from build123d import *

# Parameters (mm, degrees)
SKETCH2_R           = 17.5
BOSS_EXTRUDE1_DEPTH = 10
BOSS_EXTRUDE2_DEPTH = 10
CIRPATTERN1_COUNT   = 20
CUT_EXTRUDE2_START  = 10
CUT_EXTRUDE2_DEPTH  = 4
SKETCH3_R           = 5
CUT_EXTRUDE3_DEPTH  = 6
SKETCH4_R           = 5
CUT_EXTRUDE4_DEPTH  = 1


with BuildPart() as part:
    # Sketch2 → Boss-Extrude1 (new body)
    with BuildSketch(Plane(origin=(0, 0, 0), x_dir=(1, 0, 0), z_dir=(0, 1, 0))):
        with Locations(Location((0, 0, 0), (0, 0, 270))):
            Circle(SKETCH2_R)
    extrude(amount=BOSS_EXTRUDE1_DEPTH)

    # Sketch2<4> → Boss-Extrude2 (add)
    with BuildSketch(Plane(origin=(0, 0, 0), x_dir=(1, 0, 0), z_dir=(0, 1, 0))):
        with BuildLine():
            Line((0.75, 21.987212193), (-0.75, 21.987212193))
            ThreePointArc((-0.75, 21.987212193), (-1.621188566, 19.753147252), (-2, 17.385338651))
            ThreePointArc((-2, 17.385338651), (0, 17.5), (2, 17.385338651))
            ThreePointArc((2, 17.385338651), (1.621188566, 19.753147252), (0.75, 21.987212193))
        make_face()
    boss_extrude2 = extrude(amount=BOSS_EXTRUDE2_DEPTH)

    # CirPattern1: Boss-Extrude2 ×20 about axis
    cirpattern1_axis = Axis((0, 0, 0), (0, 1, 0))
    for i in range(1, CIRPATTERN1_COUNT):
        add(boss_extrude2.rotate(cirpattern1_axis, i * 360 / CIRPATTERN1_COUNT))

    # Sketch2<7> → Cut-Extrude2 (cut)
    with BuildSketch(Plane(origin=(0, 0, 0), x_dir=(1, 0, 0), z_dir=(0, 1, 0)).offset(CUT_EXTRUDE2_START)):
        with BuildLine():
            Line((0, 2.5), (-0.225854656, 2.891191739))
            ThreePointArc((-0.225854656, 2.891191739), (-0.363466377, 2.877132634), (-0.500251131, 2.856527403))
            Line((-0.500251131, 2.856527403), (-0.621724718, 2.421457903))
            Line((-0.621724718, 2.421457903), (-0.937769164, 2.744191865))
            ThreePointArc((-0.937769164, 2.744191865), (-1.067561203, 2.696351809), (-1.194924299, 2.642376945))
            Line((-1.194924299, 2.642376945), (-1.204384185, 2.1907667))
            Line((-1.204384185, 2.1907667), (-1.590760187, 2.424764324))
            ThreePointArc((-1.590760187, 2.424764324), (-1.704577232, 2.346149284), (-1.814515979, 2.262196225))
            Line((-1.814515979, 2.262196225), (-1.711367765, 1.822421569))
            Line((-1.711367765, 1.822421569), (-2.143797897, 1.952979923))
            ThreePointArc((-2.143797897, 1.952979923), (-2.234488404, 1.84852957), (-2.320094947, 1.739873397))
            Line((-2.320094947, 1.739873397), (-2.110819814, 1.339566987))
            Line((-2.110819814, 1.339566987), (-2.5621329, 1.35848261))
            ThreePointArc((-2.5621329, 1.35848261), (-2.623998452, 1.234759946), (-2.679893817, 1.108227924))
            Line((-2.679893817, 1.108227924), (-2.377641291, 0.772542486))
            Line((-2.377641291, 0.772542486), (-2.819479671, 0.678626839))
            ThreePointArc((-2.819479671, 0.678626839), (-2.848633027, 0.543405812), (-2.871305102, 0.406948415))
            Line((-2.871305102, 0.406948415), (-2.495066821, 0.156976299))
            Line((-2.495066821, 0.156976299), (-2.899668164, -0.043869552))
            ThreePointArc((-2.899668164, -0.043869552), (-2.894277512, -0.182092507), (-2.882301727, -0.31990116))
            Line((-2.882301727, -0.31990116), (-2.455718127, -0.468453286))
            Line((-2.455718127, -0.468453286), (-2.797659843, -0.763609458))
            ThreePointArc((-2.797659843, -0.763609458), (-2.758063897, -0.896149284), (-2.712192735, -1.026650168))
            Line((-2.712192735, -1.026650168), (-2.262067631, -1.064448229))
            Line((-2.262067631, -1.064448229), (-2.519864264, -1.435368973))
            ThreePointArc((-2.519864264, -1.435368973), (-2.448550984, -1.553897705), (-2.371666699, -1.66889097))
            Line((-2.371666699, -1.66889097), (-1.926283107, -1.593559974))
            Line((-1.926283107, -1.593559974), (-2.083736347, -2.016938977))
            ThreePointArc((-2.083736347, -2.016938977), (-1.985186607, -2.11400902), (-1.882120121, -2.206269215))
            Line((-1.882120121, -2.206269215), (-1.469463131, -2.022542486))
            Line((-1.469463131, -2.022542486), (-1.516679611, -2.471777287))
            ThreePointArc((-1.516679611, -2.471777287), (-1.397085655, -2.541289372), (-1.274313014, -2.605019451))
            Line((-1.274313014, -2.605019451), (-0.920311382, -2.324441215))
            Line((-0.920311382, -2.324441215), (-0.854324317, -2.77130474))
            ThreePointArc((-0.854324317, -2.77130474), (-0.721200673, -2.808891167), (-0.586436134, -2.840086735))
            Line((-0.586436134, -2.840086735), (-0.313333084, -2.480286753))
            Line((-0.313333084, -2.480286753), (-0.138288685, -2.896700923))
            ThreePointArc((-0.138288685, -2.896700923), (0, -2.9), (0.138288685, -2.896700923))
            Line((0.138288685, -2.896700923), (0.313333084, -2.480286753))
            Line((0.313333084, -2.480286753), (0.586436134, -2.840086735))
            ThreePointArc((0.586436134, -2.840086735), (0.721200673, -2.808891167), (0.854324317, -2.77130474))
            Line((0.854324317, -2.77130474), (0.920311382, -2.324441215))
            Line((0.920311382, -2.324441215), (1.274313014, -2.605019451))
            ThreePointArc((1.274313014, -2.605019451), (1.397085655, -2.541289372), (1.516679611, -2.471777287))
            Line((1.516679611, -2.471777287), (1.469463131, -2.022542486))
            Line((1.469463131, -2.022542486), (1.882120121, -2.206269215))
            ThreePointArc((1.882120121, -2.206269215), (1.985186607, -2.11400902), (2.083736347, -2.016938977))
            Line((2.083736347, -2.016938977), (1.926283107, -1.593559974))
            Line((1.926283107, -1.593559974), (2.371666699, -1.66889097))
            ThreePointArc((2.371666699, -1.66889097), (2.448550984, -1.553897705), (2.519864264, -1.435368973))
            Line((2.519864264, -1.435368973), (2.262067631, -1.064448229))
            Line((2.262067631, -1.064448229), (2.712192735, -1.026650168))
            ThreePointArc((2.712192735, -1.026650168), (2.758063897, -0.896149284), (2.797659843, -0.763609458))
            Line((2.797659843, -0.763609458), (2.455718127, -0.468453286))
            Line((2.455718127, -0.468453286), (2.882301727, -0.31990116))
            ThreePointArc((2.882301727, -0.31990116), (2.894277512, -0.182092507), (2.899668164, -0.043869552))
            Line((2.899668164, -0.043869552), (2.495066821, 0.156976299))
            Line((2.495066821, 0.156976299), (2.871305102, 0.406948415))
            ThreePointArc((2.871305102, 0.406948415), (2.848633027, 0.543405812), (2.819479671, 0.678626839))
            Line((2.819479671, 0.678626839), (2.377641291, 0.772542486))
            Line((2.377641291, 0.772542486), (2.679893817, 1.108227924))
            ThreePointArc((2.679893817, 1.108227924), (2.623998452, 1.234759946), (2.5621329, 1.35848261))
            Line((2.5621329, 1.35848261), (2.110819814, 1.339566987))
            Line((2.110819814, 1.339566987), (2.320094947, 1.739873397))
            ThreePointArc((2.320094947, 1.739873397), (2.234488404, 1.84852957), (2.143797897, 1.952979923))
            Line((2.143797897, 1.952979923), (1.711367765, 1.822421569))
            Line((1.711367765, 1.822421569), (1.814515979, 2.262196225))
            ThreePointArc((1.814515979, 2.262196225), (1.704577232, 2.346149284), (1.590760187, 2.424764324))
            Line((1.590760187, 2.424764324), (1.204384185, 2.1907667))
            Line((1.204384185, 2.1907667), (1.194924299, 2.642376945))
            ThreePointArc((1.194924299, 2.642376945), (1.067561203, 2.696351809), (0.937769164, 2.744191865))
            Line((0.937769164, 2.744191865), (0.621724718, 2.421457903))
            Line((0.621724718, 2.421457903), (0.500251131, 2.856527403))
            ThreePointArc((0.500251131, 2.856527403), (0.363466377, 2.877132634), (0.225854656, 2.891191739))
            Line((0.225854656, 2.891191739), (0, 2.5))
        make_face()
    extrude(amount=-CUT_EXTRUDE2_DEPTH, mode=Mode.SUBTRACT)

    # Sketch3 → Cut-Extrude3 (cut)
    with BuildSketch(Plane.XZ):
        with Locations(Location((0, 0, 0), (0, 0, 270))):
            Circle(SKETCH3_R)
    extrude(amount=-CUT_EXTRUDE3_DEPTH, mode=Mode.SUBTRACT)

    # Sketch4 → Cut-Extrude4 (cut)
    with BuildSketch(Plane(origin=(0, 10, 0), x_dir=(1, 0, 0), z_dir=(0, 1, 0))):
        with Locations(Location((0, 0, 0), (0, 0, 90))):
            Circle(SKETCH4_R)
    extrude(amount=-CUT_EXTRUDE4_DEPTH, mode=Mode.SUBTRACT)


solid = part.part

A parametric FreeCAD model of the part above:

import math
import FreeCAD as App
import Part
import Sketcher

V = App.Vector
Q = App.Units.Quantity

doc = App.newDocument("Part")
body = doc.addObject("PartDesign::Body", "Body")

sketch1 = body.newObject("Sketcher::SketchObject", "Sketch")
sketch1.AttachmentSupport = (doc.getObject("XZ_Plane"), [""])
sketch1.MapMode = "FlatFace"
sketch1.addGeometry(Part.Circle(V(0, 0, 0), V(0, 0, 1), 18), False)
sketch1.addConstraint(Sketcher.Constraint("Coincident", 0, 3, -1, 1))
sketch1.addConstraint(Sketcher.Constraint("Diameter", 0, Q("35 mm")))
pad1 = body.newObject("PartDesign::Pad", "Pad")
pad1.Profile = sketch1
pad1.Length = 10
pad1.Reversed = True

sketch2 = body.newObject("Sketcher::SketchObject", "Sketch001")
sketch2.AttachmentSupport = (doc.getObject("XZ_Plane"), [""])
sketch2.MapMode = "FlatFace"
sketch2.addGeometry(Part.LineSegment(V(0.8, -22, 0), V(-0.8, -22, 0)), False)
sketch2.addGeometry(Part.ArcOfCircle(Part.Circle(V(9.3, -16.8, 0), V(0, 0, 1), 11.3), math.radians(-177), math.radians(-153)), False)
sketch2.addGeometry(Part.ArcOfCircle(Part.Circle(V(0, 0, 0), V(0, 0, 1), 17.5), math.radians(-96.56), math.radians(-83.44)), False)
sketch2.addGeometry(Part.ArcOfCircle(Part.Circle(V(-9.3, -16.8, 0), V(0, 0, 1), 11.3), math.radians(-27), math.radians(-3)), False)
sketch2.addConstraint(Sketcher.Constraint("Coincident", 0, 2, 1, 2))
sketch2.addConstraint(Sketcher.Constraint("Coincident", 1, 1, 2, 1))
sketch2.addConstraint(Sketcher.Constraint("Coincident", 2, 2, 3, 2))
sketch2.addConstraint(Sketcher.Constraint("Coincident", 3, 1, 0, 1))
sketch2.addConstraint(Sketcher.Constraint("Horizontal", 0))
sketch2.addConstraint(Sketcher.Constraint("Coincident", 2, 3, -1, 1))
sketch2.addConstraint(Sketcher.Constraint("Equal", 1, 3))
sketch2.addConstraint(Sketcher.Constraint("Symmetric", 1, 3, 3, 3, -2))
sketch2.addConstraint(Sketcher.Constraint("Radius", 2, Q("17.5 mm")))
sketch2.addConstraint(Sketcher.Constraint("DistanceX", 0, 2, 0, 1, Q("1.5 mm")))
sketch2.addConstraint(Sketcher.Constraint("DistanceX", 1, 1, -1, 1, Q("2 mm")))
sketch2.addConstraint(Sketcher.Constraint("Radius", 1, Q("11.269719 mm")))
sketch2.addConstraint(Sketcher.Constraint("DistanceY", 0, 2, 3, 3, Q("5.1882 mm")))
pad2 = body.newObject("PartDesign::Pad", "Pad001")
pad2.Profile = sketch2
pad2.Length = 10
pad2.Reversed = True
doc.recompute()

polarpattern = body.newObject("PartDesign::PolarPattern", "PolarPattern")
polarpattern.Originals = [pad2]
polarpattern.Axis = (doc.getObject("Y_Axis"), [""])
polarpattern.Angle = 360
polarpattern.Occurrences = 20
body.Tip = polarpattern

sketch3 = body.newObject("Sketcher::SketchObject", "Sketch002")
sketch3.AttachmentSupport = (doc.getObject("XZ_Plane"), [""])
sketch3.MapMode = "FlatFace"
sketch3.AttachmentOffset = App.Placement(V(0, 0, -10), App.Rotation())
sketch3.addGeometry(Part.LineSegment(V(0, -2.5, 0), V(-0.23, -2.89, 0)), False)
sketch3.addGeometry(Part.ArcOfCircle(Part.Circle(V(0, 0, 0), V(0, 0, 1), 2.9), math.radians(-99.93), math.radians(-94.47)), False)
sketch3.addGeometry(Part.LineSegment(V(-0.5, -2.86, 0), V(-0.62, -2.42, 0)), False)
sketch3.addGeometry(Part.LineSegment(V(-0.62, -2.42, 0), V(-0.94, -2.74, 0)), False)
sketch3.addGeometry(Part.ArcOfCircle(Part.Circle(V(0, 0, 0), V(0, 0, 1), 2.9), math.radians(-114.33), math.radians(-108.87)), False)
sketch3.addGeometry(Part.LineSegment(V(-1.19, -2.64, 0), V(-1.2, -2.19, 0)), False)
sketch3.addGeometry(Part.LineSegment(V(-1.2, -2.19, 0), V(-1.59, -2.42, 0)), False)
sketch3.addGeometry(Part.ArcOfCircle(Part.Circle(V(0, 0, 0), V(0, 0, 1), 2.9), math.radians(-128.73), math.radians(-123.27)), False)
sketch3.addGeometry(Part.LineSegment(V(-1.81, -2.26, 0), V(-1.71, -1.82, 0)), False)
sketch3.addGeometry(Part.LineSegment(V(-1.71, -1.82, 0), V(-2.14, -1.95, 0)), False)
sketch3.addGeometry(Part.ArcOfCircle(Part.Circle(V(0, 0, 0), V(0, 0, 1), 2.9), math.radians(-143.13), math.radians(-137.67)), False)
sketch3.addGeometry(Part.LineSegment(V(-2.32, -1.74, 0), V(-2.11, -1.34, 0)), False)
sketch3.addGeometry(Part.LineSegment(V(-2.11, -1.34, 0), V(-2.56, -1.36, 0)), False)
sketch3.addGeometry(Part.ArcOfCircle(Part.Circle(V(0, 0, 0), V(0, 0, 1), 2.9), math.radians(-157.53), math.radians(-152.07)), False)
sketch3.addGeometry(Part.LineSegment(V(-2.68, -1.11, 0), V(-2.38, -0.77, 0)), False)
sketch3.addGeometry(Part.LineSegment(V(-2.38, -0.77, 0), V(-2.82, -0.68, 0)), False)
sketch3.addGeometry(Part.ArcOfCircle(Part.Circle(V(0, 0, 0), V(0, 0, 1), 2.9), math.radians(-171.93), math.radians(-166.47)), False)
sketch3.addGeometry(Part.LineSegment(V(-2.87, -0.41, 0), V(-2.5, -0.16, 0)), False)
sketch3.addGeometry(Part.LineSegment(V(-2.5, -0.16, 0), V(-2.9, 0.04, 0)), False)
sketch3.addGeometry(Part.ArcOfCircle(Part.Circle(V(0, 0, 0), V(0, 0, 1), 2.9), math.radians(173.67), math.radians(179.13)), False)
sketch3.addGeometry(Part.LineSegment(V(-2.88, 0.32, 0), V(-2.46, 0.47, 0)), False)
sketch3.addGeometry(Part.LineSegment(V(-2.46, 0.47, 0), V(-2.8, 0.76, 0)), False)
sketch3.addGeometry(Part.ArcOfCircle(Part.Circle(V(0, 0, 0), V(0, 0, 1), 2.9), math.radians(159.27), math.radians(164.73)), False)
sketch3.addGeometry(Part.LineSegment(V(-2.71, 1.03, 0), V(-2.26, 1.06, 0)), False)
sketch3.addGeometry(Part.LineSegment(V(-2.26, 1.06, 0), V(-2.52, 1.44, 0)), False)
sketch3.addGeometry(Part.ArcOfCircle(Part.Circle(V(0, 0, 0), V(0, 0, 1), 2.9), math.radians(144.87), math.radians(150.33)), False)
sketch3.addGeometry(Part.LineSegment(V(-2.37, 1.67, 0), V(-1.93, 1.59, 0)), False)
sketch3.addGeometry(Part.LineSegment(V(-1.93, 1.59, 0), V(-2.08, 2.02, 0)), False)
sketch3.addGeometry(Part.ArcOfCircle(Part.Circle(V(0, 0, 0), V(0, 0, 1), 2.9), math.radians(130.47), math.radians(135.93)), False)
sketch3.addGeometry(Part.LineSegment(V(-1.88, 2.21, 0), V(-1.47, 2.02, 0)), False)
sketch3.addGeometry(Part.LineSegment(V(-1.47, 2.02, 0), V(-1.52, 2.47, 0)), False)
sketch3.addGeometry(Part.ArcOfCircle(Part.Circle(V(0, 0, 0), V(0, 0, 1), 2.9), math.radians(116.07), math.radians(121.53)), False)
sketch3.addGeometry(Part.LineSegment(V(-1.27, 2.61, 0), V(-0.92, 2.32, 0)), False)
sketch3.addGeometry(Part.LineSegment(V(-0.92, 2.32, 0), V(-0.85, 2.77, 0)), False)
sketch3.addGeometry(Part.ArcOfCircle(Part.Circle(V(0, 0, 0), V(0, 0, 1), 2.9), math.radians(101.67), math.radians(107.13)), False)
sketch3.addGeometry(Part.LineSegment(V(-0.59, 2.84, 0), V(-0.31, 2.48, 0)), False)
sketch3.addGeometry(Part.LineSegment(V(-0.31, 2.48, 0), V(-0.14, 2.9, 0)), False)
sketch3.addGeometry(Part.ArcOfCircle(Part.Circle(V(0, 0, 0), V(0, 0, 1), 2.9), math.radians(87.27), math.radians(92.73)), False)
sketch3.addGeometry(Part.LineSegment(V(0.14, 2.9, 0), V(0.31, 2.48, 0)), False)
sketch3.addGeometry(Part.LineSegment(V(0.31, 2.48, 0), V(0.59, 2.84, 0)), False)
sketch3.addGeometry(Part.ArcOfCircle(Part.Circle(V(0, 0, 0), V(0, 0, 1), 2.9), math.radians(72.87), math.radians(78.33)), False)
sketch3.addGeometry(Part.LineSegment(V(0.85, 2.77, 0), V(0.92, 2.32, 0)), False)
sketch3.addGeometry(Part.LineSegment(V(0.92, 2.32, 0), V(1.27, 2.61, 0)), False)
sketch3.addGeometry(Part.ArcOfCircle(Part.Circle(V(0, 0, 0), V(0, 0, 1), 2.9), math.radians(58.47), math.radians(63.93)), False)
sketch3.addGeometry(Part.LineSegment(V(1.52, 2.47, 0), V(1.47, 2.02, 0)), False)
sketch3.addGeometry(Part.LineSegment(V(1.47, 2.02, 0), V(1.88, 2.21, 0)), False)
sketch3.addGeometry(Part.ArcOfCircle(Part.Circle(V(0, 0, 0), V(0, 0, 1), 2.9), math.radians(44.07), math.radians(49.53)), False)
sketch3.addGeometry(Part.LineSegment(V(2.08, 2.02, 0), V(1.93, 1.59, 0)), False)
sketch3.addGeometry(Part.LineSegment(V(1.93, 1.59, 0), V(2.37, 1.67, 0)), False)
sketch3.addGeometry(Part.ArcOfCircle(Part.Circle(V(0, 0, 0), V(0, 0, 1), 2.9), math.radians(29.67), math.radians(35.13)), False)
sketch3.addGeometry(Part.LineSegment(V(2.52, 1.44, 0), V(2.26, 1.06, 0)), False)
sketch3.addGeometry(Part.LineSegment(V(2.26, 1.06, 0), V(2.71, 1.03, 0)), False)
sketch3.addGeometry(Part.ArcOfCircle(Part.Circle(V(0, 0, 0), V(0, 0, 1), 2.9), math.radians(15.27), math.radians(20.73)), False)
sketch3.addGeometry(Part.LineSegment(V(2.8, 0.76, 0), V(2.46, 0.47, 0)), False)
sketch3.addGeometry(Part.LineSegment(V(2.46, 0.47, 0), V(2.88, 0.32, 0)), False)
sketch3.addGeometry(Part.ArcOfCircle(Part.Circle(V(0, 0, 0), V(0, 0, 1), 2.9), math.radians(0.87), math.radians(6.33)), False)
sketch3.addGeometry(Part.LineSegment(V(2.9, 0.04, 0), V(2.5, -0.16, 0)), False)
sketch3.addGeometry(Part.LineSegment(V(2.5, -0.16, 0), V(2.87, -0.41, 0)), False)
sketch3.addGeometry(Part.ArcOfCircle(Part.Circle(V(0, 0, 0), V(0, 0, 1), 2.9), math.radians(-13.53), math.radians(-8.07)), False)
sketch3.addGeometry(Part.LineSegment(V(2.82, -0.68, 0), V(2.38, -0.77, 0)), False)
sketch3.addGeometry(Part.LineSegment(V(2.38, -0.77, 0), V(2.68, -1.11, 0)), False)
sketch3.addGeometry(Part.ArcOfCircle(Part.Circle(V(0, 0, 0), V(0, 0, 1), 2.9), math.radians(-27.93), math.radians(-22.47)), False)
sketch3.addGeometry(Part.LineSegment(V(2.56, -1.36, 0), V(2.11, -1.34, 0)), False)
sketch3.addGeometry(Part.LineSegment(V(2.11, -1.34, 0), V(2.32, -1.74, 0)), False)
sketch3.addGeometry(Part.ArcOfCircle(Part.Circle(V(0, 0, 0), V(0, 0, 1), 2.9), math.radians(-42.33), math.radians(-36.87)), False)
sketch3.addGeometry(Part.LineSegment(V(2.14, -1.95, 0), V(1.71, -1.82, 0)), False)
sketch3.addGeometry(Part.LineSegment(V(1.71, -1.82, 0), V(1.81, -2.26, 0)), False)
sketch3.addGeometry(Part.ArcOfCircle(Part.Circle(V(0, 0, 0), V(0, 0, 1), 2.9), math.radians(-56.73), math.radians(-51.27)), False)
sketch3.addGeometry(Part.LineSegment(V(1.59, -2.42, 0), V(1.2, -2.19, 0)), False)
sketch3.addGeometry(Part.LineSegment(V(1.2, -2.19, 0), V(1.19, -2.64, 0)), False)
sketch3.addGeometry(Part.ArcOfCircle(Part.Circle(V(0, 0, 0), V(0, 0, 1), 2.9), math.radians(-71.13), math.radians(-65.67)), False)
sketch3.addGeometry(Part.LineSegment(V(0.94, -2.74, 0), V(0.62, -2.42, 0)), False)
sketch3.addGeometry(Part.LineSegment(V(0.62, -2.42, 0), V(0.5, -2.86, 0)), False)
sketch3.addGeometry(Part.ArcOfCircle(Part.Circle(V(0, 0, 0), V(0, 0, 1), 2.9), math.radians(-85.53), math.radians(-80.07)), False)
sketch3.addGeometry(Part.LineSegment(V(0.23, -2.89, 0), V(0, -2.5, 0)), False)
sketch3.addConstraint(Sketcher.Constraint("Coincident", 0, 2, 1, 2))
sketch3.addConstraint(Sketcher.Constraint("Coincident", 1, 1, 2, 1))
sketch3.addConstraint(Sketcher.Constraint("Coincident", 2, 2, 3, 1))
sketch3.addConstraint(Sketcher.Constraint("Coincident", 3, 2, 4, 2))
sketch3.addConstraint(Sketcher.Constraint("Coincident", 4, 1, 5, 1))
sketch3.addConstraint(Sketcher.Constraint("Coincident", 5, 2, 6, 1))
sketch3.addConstraint(Sketcher.Constraint("Coincident", 6, 2, 7, 2))
sketch3.addConstraint(Sketcher.Constraint("Coincident", 7, 1, 8, 1))
sketch3.addConstraint(Sketcher.Constraint("Coincident", 8, 2, 9, 1))
sketch3.addConstraint(Sketcher.Constraint("Coincident", 9, 2, 10, 2))
sketch3.addConstraint(Sketcher.Constraint("Coincident", 10, 1, 11, 1))
sketch3.addConstraint(Sketcher.Constraint("Coincident", 11, 2, 12, 1))
sketch3.addConstraint(Sketcher.Constraint("Coincident", 12, 2, 13, 2))
sketch3.addConstraint(Sketcher.Constraint("Coincident", 13, 1, 14, 1))
sketch3.addConstraint(Sketcher.Constraint("Coincident", 14, 2, 15, 1))
sketch3.addConstraint(Sketcher.Constraint("Coincident", 15, 2, 16, 2))
sketch3.addConstraint(Sketcher.Constraint("Coincident", 16, 1, 17, 1))
sketch3.addConstraint(Sketcher.Constraint("Coincident", 17, 2, 18, 1))
sketch3.addConstraint(Sketcher.Constraint("Coincident", 18, 2, 19, 2))
sketch3.addConstraint(Sketcher.Constraint("Coincident", 19, 1, 20, 1))
sketch3.addConstraint(Sketcher.Constraint("Coincident", 20, 2, 21, 1))
sketch3.addConstraint(Sketcher.Constraint("Coincident", 21, 2, 22, 2))
sketch3.addConstraint(Sketcher.Constraint("Coincident", 22, 1, 23, 1))
sketch3.addConstraint(Sketcher.Constraint("Coincident", 23, 2, 24, 1))
sketch3.addConstraint(Sketcher.Constraint("Coincident", 24, 2, 25, 2))
sketch3.addConstraint(Sketcher.Constraint("Coincident", 25, 1, 26, 1))
sketch3.addConstraint(Sketcher.Constraint("Coincident", 26, 2, 27, 1))
sketch3.addConstraint(Sketcher.Constraint("Coincident", 27, 2, 28, 2))
sketch3.addConstraint(Sketcher.Constraint("Coincident", 28, 1, 29, 1))
sketch3.addConstraint(Sketcher.Constraint("Coincident", 29, 2, 30, 1))
sketch3.addConstraint(Sketcher.Constraint("Coincident", 30, 2, 31, 2))
sketch3.addConstraint(Sketcher.Constraint("Coincident", 31, 1, 32, 1))
sketch3.addConstraint(Sketcher.Constraint("Coincident", 32, 2, 33, 1))
sketch3.addConstraint(Sketcher.Constraint("Coincident", 33, 2, 34, 2))
sketch3.addConstraint(Sketcher.Constraint("Coincident", 34, 1, 35, 1))
sketch3.addConstraint(Sketcher.Constraint("Coincident", 35, 2, 36, 1))
sketch3.addConstraint(Sketcher.Constraint("Coincident", 36, 2, 37, 2))
sketch3.addConstraint(Sketcher.Constraint("Coincident", 37, 1, 38, 1))
sketch3.addConstraint(Sketcher.Constraint("Coincident", 38, 2, 39, 1))
sketch3.addConstraint(Sketcher.Constraint("Coincident", 39, 2, 40, 2))
sketch3.addConstraint(Sketcher.Constraint("Coincident", 40, 1, 41, 1))
sketch3.addConstraint(Sketcher.Constraint("Coincident", 41, 2, 42, 1))
sketch3.addConstraint(Sketcher.Constraint("Coincident", 42, 2, 43, 2))
sketch3.addConstraint(Sketcher.Constraint("Coincident", 43, 1, 44, 1))
sketch3.addConstraint(Sketcher.Constraint("Coincident", 44, 2, 45, 1))
sketch3.addConstraint(Sketcher.Constraint("Coincident", 45, 2, 46, 2))
sketch3.addConstraint(Sketcher.Constraint("Coincident", 46, 1, 47, 1))
sketch3.addConstraint(Sketcher.Constraint("Coincident", 47, 2, 48, 1))
sketch3.addConstraint(Sketcher.Constraint("Coincident", 48, 2, 49, 2))
sketch3.addConstraint(Sketcher.Constraint("Coincident", 49, 1, 50, 1))
sketch3.addConstraint(Sketcher.Constraint("Coincident", 50, 2, 51, 1))
sketch3.addConstraint(Sketcher.Constraint("Coincident", 51, 2, 52, 2))
sketch3.addConstraint(Sketcher.Constraint("Coincident", 52, 1, 53, 1))
sketch3.addConstraint(Sketcher.Constraint("Coincident", 53, 2, 54, 1))
sketch3.addConstraint(Sketcher.Constraint("Coincident", 54, 2, 55, 2))
sketch3.addConstraint(Sketcher.Constraint("Coincident", 55, 1, 56, 1))
sketch3.addConstraint(Sketcher.Constraint("Coincident", 56, 2, 57, 1))
sketch3.addConstraint(Sketcher.Constraint("Coincident", 57, 2, 58, 2))
sketch3.addConstraint(Sketcher.Constraint("Coincident", 58, 1, 59, 1))
sketch3.addConstraint(Sketcher.Constraint("Coincident", 59, 2, 60, 1))
sketch3.addConstraint(Sketcher.Constraint("Coincident", 60, 2, 61, 2))
sketch3.addConstraint(Sketcher.Constraint("Coincident", 61, 1, 62, 1))
sketch3.addConstraint(Sketcher.Constraint("Coincident", 62, 2, 63, 1))
sketch3.addConstraint(Sketcher.Constraint("Coincident", 63, 2, 64, 2))
sketch3.addConstraint(Sketcher.Constraint("Coincident", 64, 1, 65, 1))
sketch3.addConstraint(Sketcher.Constraint("Coincident", 65, 2, 66, 1))
sketch3.addConstraint(Sketcher.Constraint("Coincident", 66, 2, 67, 2))
sketch3.addConstraint(Sketcher.Constraint("Coincident", 67, 1, 68, 1))
sketch3.addConstraint(Sketcher.Constraint("Coincident", 68, 2, 69, 1))
sketch3.addConstraint(Sketcher.Constraint("Coincident", 69, 2, 70, 2))
sketch3.addConstraint(Sketcher.Constraint("Coincident", 70, 1, 71, 1))
sketch3.addConstraint(Sketcher.Constraint("Coincident", 71, 2, 72, 1))
sketch3.addConstraint(Sketcher.Constraint("Coincident", 72, 2, 73, 2))
sketch3.addConstraint(Sketcher.Constraint("Coincident", 73, 1, 74, 1))
sketch3.addConstraint(Sketcher.Constraint("Coincident", 74, 2, 0, 1))
sketch3.addConstraint(Sketcher.Constraint("Coincident", 1, 3, -1, 1))
sketch3.addConstraint(Sketcher.Constraint("Coincident", 4, 3, -1, 1))
sketch3.addConstraint(Sketcher.Constraint("Coincident", 7, 3, -1, 1))
sketch3.addConstraint(Sketcher.Constraint("Coincident", 10, 3, -1, 1))
sketch3.addConstraint(Sketcher.Constraint("Coincident", 13, 3, -1, 1))
sketch3.addConstraint(Sketcher.Constraint("Coincident", 16, 3, -1, 1))
sketch3.addConstraint(Sketcher.Constraint("Coincident", 19, 3, -1, 1))
sketch3.addConstraint(Sketcher.Constraint("Coincident", 22, 3, -1, 1))
sketch3.addConstraint(Sketcher.Constraint("Coincident", 25, 3, -1, 1))
sketch3.addConstraint(Sketcher.Constraint("Coincident", 28, 3, -1, 1))
sketch3.addConstraint(Sketcher.Constraint("Coincident", 31, 3, -1, 1))
sketch3.addConstraint(Sketcher.Constraint("Coincident", 34, 3, -1, 1))
sketch3.addConstraint(Sketcher.Constraint("Coincident", 37, 3, -1, 1))
sketch3.addConstraint(Sketcher.Constraint("Coincident", 40, 3, -1, 1))
sketch3.addConstraint(Sketcher.Constraint("Coincident", 43, 3, -1, 1))
sketch3.addConstraint(Sketcher.Constraint("Coincident", 46, 3, -1, 1))
sketch3.addConstraint(Sketcher.Constraint("Coincident", 49, 3, -1, 1))
sketch3.addConstraint(Sketcher.Constraint("Coincident", 52, 3, -1, 1))
sketch3.addConstraint(Sketcher.Constraint("Coincident", 55, 3, -1, 1))
sketch3.addConstraint(Sketcher.Constraint("Coincident", 58, 3, -1, 1))
sketch3.addConstraint(Sketcher.Constraint("Coincident", 61, 3, -1, 1))
sketch3.addConstraint(Sketcher.Constraint("Coincident", 64, 3, -1, 1))
sketch3.addConstraint(Sketcher.Constraint("Coincident", 67, 3, -1, 1))
sketch3.addConstraint(Sketcher.Constraint("Coincident", 70, 3, -1, 1))
sketch3.addConstraint(Sketcher.Constraint("Coincident", 73, 3, -1, 1))
sketch3.addConstraint(Sketcher.Constraint("Equal", 1, 4))
sketch3.addConstraint(Sketcher.Constraint("Equal", 4, 7))
sketch3.addConstraint(Sketcher.Constraint("Equal", 7, 10))
sketch3.addConstraint(Sketcher.Constraint("Equal", 10, 13))
sketch3.addConstraint(Sketcher.Constraint("Equal", 13, 16))
sketch3.addConstraint(Sketcher.Constraint("Equal", 16, 19))
sketch3.addConstraint(Sketcher.Constraint("Equal", 19, 22))
sketch3.addConstraint(Sketcher.Constraint("Equal", 22, 25))
sketch3.addConstraint(Sketcher.Constraint("Equal", 25, 28))
sketch3.addConstraint(Sketcher.Constraint("Equal", 28, 31))
sketch3.addConstraint(Sketcher.Constraint("Equal", 31, 34))
sketch3.addConstraint(Sketcher.Constraint("Equal", 34, 37))
sketch3.addConstraint(Sketcher.Constraint("Equal", 37, 40))
sketch3.addConstraint(Sketcher.Constraint("Equal", 40, 43))
sketch3.addConstraint(Sketcher.Constraint("Equal", 43, 46))
sketch3.addConstraint(Sketcher.Constraint("Equal", 46, 49))
sketch3.addConstraint(Sketcher.Constraint("Equal", 49, 52))
sketch3.addConstraint(Sketcher.Constraint("Equal", 52, 55))
sketch3.addConstraint(Sketcher.Constraint("Equal", 55, 58))
sketch3.addConstraint(Sketcher.Constraint("Equal", 58, 61))
sketch3.addConstraint(Sketcher.Constraint("Equal", 61, 64))
sketch3.addConstraint(Sketcher.Constraint("Equal", 64, 67))
sketch3.addConstraint(Sketcher.Constraint("Equal", 67, 70))
sketch3.addConstraint(Sketcher.Constraint("Equal", 70, 73))
sketch3.addConstraint(Sketcher.Constraint("Symmetric", 35, 2, 38, 2, -2))
sketch3.addConstraint(Sketcher.Constraint("Symmetric", 32, 2, 41, 2, -2))
sketch3.addConstraint(Sketcher.Constraint("Symmetric", 29, 2, 44, 2, -2))
sketch3.addConstraint(Sketcher.Constraint("Symmetric", 26, 2, 47, 2, -2))
sketch3.addConstraint(Sketcher.Constraint("Symmetric", 23, 2, 50, 2, -2))
sketch3.addConstraint(Sketcher.Constraint("Symmetric", 20, 2, 53, 2, -2))
sketch3.addConstraint(Sketcher.Constraint("Symmetric", 17, 2, 56, 2, -2))
sketch3.addConstraint(Sketcher.Constraint("Symmetric", 14, 2, 59, 2, -2))
sketch3.addConstraint(Sketcher.Constraint("Symmetric", 11, 2, 62, 2, -2))
sketch3.addConstraint(Sketcher.Constraint("Symmetric", 8, 2, 65, 2, -2))
sketch3.addConstraint(Sketcher.Constraint("Symmetric", 5, 2, 68, 2, -2))
sketch3.addConstraint(Sketcher.Constraint("Symmetric", 2, 2, 71, 2, -2))
sketch3.addConstraint(Sketcher.Constraint("PointOnObject", 74, 2, -2))
sketch3.addConstraint(Sketcher.Constraint("Horizontal", 36, 2, 37, 1))
sketch3.addConstraint(Sketcher.Constraint("Horizontal", 34, 1, 39, 2))
sketch3.addConstraint(Sketcher.Constraint("Horizontal", 33, 2, 40, 1))
sketch3.addConstraint(Sketcher.Constraint("Horizontal", 31, 1, 42, 2))
sketch3.addConstraint(Sketcher.Constraint("Horizontal", 30, 2, 43, 1))
sketch3.addConstraint(Sketcher.Constraint("Horizontal", 28, 1, 45, 2))
sketch3.addConstraint(Sketcher.Constraint("Horizontal", 27, 2, 46, 1))
sketch3.addConstraint(Sketcher.Constraint("Horizontal", 25, 1, 48, 2))
sketch3.addConstraint(Sketcher.Constraint("Horizontal", 24, 2, 49, 1))
sketch3.addConstraint(Sketcher.Constraint("Horizontal", 22, 1, 51, 2))
sketch3.addConstraint(Sketcher.Constraint("Horizontal", 21, 2, 52, 1))
sketch3.addConstraint(Sketcher.Constraint("Horizontal", 19, 1, 54, 2))
sketch3.addConstraint(Sketcher.Constraint("Horizontal", 18, 2, 55, 1))
sketch3.addConstraint(Sketcher.Constraint("Horizontal", 16, 1, 57, 2))
sketch3.addConstraint(Sketcher.Constraint("Horizontal", 15, 2, 58, 1))
sketch3.addConstraint(Sketcher.Constraint("Horizontal", 13, 1, 60, 2))
sketch3.addConstraint(Sketcher.Constraint("Horizontal", 12, 2, 61, 1))
sketch3.addConstraint(Sketcher.Constraint("Horizontal", 10, 1, 63, 2))
sketch3.addConstraint(Sketcher.Constraint("Horizontal", 9, 2, 64, 1))
sketch3.addConstraint(Sketcher.Constraint("Horizontal", 7, 1, 66, 2))
sketch3.addConstraint(Sketcher.Constraint("Horizontal", 6, 2, 67, 1))
sketch3.addConstraint(Sketcher.Constraint("Horizontal", 4, 1, 69, 2))
sketch3.addConstraint(Sketcher.Constraint("Horizontal", 3, 2, 70, 1))
sketch3.addConstraint(Sketcher.Constraint("Horizontal", 1, 1, 72, 2))
sketch3.addConstraint(Sketcher.Constraint("Horizontal", 0, 2, 73, 1))
sketch3.addConstraint(Sketcher.Constraint("Equal", 0, 2))
sketch3.addConstraint(Sketcher.Constraint("Equal", 2, 3))
sketch3.addConstraint(Sketcher.Constraint("Equal", 3, 5))
sketch3.addConstraint(Sketcher.Constraint("Equal", 5, 6))
sketch3.addConstraint(Sketcher.Constraint("Equal", 6, 8))
sketch3.addConstraint(Sketcher.Constraint("Equal", 8, 9))
sketch3.addConstraint(Sketcher.Constraint("Equal", 9, 11))
sketch3.addConstraint(Sketcher.Constraint("Equal", 11, 12))
sketch3.addConstraint(Sketcher.Constraint("Equal", 12, 14))
sketch3.addConstraint(Sketcher.Constraint("Equal", 14, 15))
sketch3.addConstraint(Sketcher.Constraint("Equal", 15, 17))
sketch3.addConstraint(Sketcher.Constraint("Equal", 17, 18))
sketch3.addConstraint(Sketcher.Constraint("Equal", 18, 20))
sketch3.addConstraint(Sketcher.Constraint("Equal", 20, 21))
sketch3.addConstraint(Sketcher.Constraint("Equal", 21, 23))
sketch3.addConstraint(Sketcher.Constraint("Equal", 23, 24))
sketch3.addConstraint(Sketcher.Constraint("Equal", 24, 26))
sketch3.addConstraint(Sketcher.Constraint("Equal", 26, 27))
sketch3.addConstraint(Sketcher.Constraint("Equal", 27, 29))
sketch3.addConstraint(Sketcher.Constraint("Equal", 29, 30))
sketch3.addConstraint(Sketcher.Constraint("Equal", 30, 32))
sketch3.addConstraint(Sketcher.Constraint("Equal", 32, 33))
sketch3.addConstraint(Sketcher.Constraint("Equal", 33, 35))
sketch3.addConstraint(Sketcher.Constraint("Equal", 35, 36))
sketch3.addConstraint(Sketcher.Constraint("Radius", 1, Q("2.9 mm")))
sketch3.addConstraint(Sketcher.Constraint("Angle", 0, Q("-120 deg")))
sketch3.addConstraint(Sketcher.Constraint("Angle", 14, Q("48 deg")))
sketch3.addConstraint(Sketcher.Constraint("Angle", 15, Q("168 deg")))
sketch3.addConstraint(Sketcher.Constraint("Angle", 29, Q("-24 deg")))
sketch3.addConstraint(Sketcher.Constraint("Angle", 30, Q("96 deg")))
sketch3.addConstraint(Sketcher.Constraint("Angle", 2, Q("105.6 deg")))
sketch3.addConstraint(Sketcher.Constraint("Angle", 3, Q("-134.4 deg")))
sketch3.addConstraint(Sketcher.Constraint("Angle", 5, Q("91.2 deg")))
sketch3.addConstraint(Sketcher.Constraint("Angle", 6, Q("-148.8 deg")))
sketch3.addConstraint(Sketcher.Constraint("Angle", 8, Q("76.8 deg")))
sketch3.addConstraint(Sketcher.Constraint("Angle", 9, Q("-163.2 deg")))
sketch3.addConstraint(Sketcher.Constraint("Angle", 11, Q("62.4 deg")))
sketch3.addConstraint(Sketcher.Constraint("Angle", 12, Q("-177.6 deg")))
sketch3.addConstraint(Sketcher.Constraint("Angle", 17, Q("33.6 deg")))
sketch3.addConstraint(Sketcher.Constraint("Angle", 18, Q("153.6 deg")))
sketch3.addConstraint(Sketcher.Constraint("Angle", 20, Q("19.2 deg")))
sketch3.addConstraint(Sketcher.Constraint("Angle", 21, Q("139.2 deg")))
sketch3.addConstraint(Sketcher.Constraint("Angle", 23, Q("4.8 deg")))
sketch3.addConstraint(Sketcher.Constraint("Angle", 24, Q("124.8 deg")))
sketch3.addConstraint(Sketcher.Constraint("Angle", 26, Q("-9.6 deg")))
sketch3.addConstraint(Sketcher.Constraint("Angle", 27, Q("110.4 deg")))
sketch3.addConstraint(Sketcher.Constraint("Angle", 32, Q("-38.4 deg")))
sketch3.addConstraint(Sketcher.Constraint("Angle", 33, Q("81.6 deg")))
sketch3.addConstraint(Sketcher.Constraint("Angle", 35, Q("-52.8 deg")))
sketch3.addConstraint(Sketcher.Constraint("Angle", 36, Q("67.2 deg")))
sketch3.addConstraint(Sketcher.Constraint("DistanceY", 74, 2, -1, 1, Q("2.5 mm")))
pocket1 = body.newObject("PartDesign::Pocket", "Pocket")
pocket1.Profile = sketch3
pocket1.Length = 4
pocket1.Reversed = True

sketch4 = body.newObject("Sketcher::SketchObject", "Sketch003")
sketch4.AttachmentSupport = (doc.getObject("XZ_Plane"), [""])
sketch4.MapMode = "FlatFace"
sketch4.addGeometry(Part.Circle(V(0, 0, 0), V(0, 0, 1), 5), False)
sketch4.addConstraint(Sketcher.Constraint("Coincident", 0, 3, -1, 1))
sketch4.addConstraint(Sketcher.Constraint("Diameter", 0, Q("10 mm")))
pocket2 = body.newObject("PartDesign::Pocket", "Pocket001")
pocket2.Profile = sketch4
pocket2.Length = 6

sketch5 = body.newObject("Sketcher::SketchObject", "Sketch004")
sketch5.AttachmentSupport = (doc.getObject("XZ_Plane"), [""])
sketch5.MapMode = "FlatFace"
sketch5.AttachmentOffset = App.Placement(V(0, 0, -10), App.Rotation())
sketch5.addGeometry(Part.Circle(V(0, 0, 0), V(0, 0, 1), 5), False)
sketch5.addConstraint(Sketcher.Constraint("Coincident", 0, 3, -1, 1))
sketch5.addConstraint(Sketcher.Constraint("Diameter", 0, Q("10 mm")))
pocket3 = body.newObject("PartDesign::Pocket", "Pocket002")
pocket3.Profile = sketch5
pocket3.Length = 1
pocket3.Reversed = True

doc.recompute()
